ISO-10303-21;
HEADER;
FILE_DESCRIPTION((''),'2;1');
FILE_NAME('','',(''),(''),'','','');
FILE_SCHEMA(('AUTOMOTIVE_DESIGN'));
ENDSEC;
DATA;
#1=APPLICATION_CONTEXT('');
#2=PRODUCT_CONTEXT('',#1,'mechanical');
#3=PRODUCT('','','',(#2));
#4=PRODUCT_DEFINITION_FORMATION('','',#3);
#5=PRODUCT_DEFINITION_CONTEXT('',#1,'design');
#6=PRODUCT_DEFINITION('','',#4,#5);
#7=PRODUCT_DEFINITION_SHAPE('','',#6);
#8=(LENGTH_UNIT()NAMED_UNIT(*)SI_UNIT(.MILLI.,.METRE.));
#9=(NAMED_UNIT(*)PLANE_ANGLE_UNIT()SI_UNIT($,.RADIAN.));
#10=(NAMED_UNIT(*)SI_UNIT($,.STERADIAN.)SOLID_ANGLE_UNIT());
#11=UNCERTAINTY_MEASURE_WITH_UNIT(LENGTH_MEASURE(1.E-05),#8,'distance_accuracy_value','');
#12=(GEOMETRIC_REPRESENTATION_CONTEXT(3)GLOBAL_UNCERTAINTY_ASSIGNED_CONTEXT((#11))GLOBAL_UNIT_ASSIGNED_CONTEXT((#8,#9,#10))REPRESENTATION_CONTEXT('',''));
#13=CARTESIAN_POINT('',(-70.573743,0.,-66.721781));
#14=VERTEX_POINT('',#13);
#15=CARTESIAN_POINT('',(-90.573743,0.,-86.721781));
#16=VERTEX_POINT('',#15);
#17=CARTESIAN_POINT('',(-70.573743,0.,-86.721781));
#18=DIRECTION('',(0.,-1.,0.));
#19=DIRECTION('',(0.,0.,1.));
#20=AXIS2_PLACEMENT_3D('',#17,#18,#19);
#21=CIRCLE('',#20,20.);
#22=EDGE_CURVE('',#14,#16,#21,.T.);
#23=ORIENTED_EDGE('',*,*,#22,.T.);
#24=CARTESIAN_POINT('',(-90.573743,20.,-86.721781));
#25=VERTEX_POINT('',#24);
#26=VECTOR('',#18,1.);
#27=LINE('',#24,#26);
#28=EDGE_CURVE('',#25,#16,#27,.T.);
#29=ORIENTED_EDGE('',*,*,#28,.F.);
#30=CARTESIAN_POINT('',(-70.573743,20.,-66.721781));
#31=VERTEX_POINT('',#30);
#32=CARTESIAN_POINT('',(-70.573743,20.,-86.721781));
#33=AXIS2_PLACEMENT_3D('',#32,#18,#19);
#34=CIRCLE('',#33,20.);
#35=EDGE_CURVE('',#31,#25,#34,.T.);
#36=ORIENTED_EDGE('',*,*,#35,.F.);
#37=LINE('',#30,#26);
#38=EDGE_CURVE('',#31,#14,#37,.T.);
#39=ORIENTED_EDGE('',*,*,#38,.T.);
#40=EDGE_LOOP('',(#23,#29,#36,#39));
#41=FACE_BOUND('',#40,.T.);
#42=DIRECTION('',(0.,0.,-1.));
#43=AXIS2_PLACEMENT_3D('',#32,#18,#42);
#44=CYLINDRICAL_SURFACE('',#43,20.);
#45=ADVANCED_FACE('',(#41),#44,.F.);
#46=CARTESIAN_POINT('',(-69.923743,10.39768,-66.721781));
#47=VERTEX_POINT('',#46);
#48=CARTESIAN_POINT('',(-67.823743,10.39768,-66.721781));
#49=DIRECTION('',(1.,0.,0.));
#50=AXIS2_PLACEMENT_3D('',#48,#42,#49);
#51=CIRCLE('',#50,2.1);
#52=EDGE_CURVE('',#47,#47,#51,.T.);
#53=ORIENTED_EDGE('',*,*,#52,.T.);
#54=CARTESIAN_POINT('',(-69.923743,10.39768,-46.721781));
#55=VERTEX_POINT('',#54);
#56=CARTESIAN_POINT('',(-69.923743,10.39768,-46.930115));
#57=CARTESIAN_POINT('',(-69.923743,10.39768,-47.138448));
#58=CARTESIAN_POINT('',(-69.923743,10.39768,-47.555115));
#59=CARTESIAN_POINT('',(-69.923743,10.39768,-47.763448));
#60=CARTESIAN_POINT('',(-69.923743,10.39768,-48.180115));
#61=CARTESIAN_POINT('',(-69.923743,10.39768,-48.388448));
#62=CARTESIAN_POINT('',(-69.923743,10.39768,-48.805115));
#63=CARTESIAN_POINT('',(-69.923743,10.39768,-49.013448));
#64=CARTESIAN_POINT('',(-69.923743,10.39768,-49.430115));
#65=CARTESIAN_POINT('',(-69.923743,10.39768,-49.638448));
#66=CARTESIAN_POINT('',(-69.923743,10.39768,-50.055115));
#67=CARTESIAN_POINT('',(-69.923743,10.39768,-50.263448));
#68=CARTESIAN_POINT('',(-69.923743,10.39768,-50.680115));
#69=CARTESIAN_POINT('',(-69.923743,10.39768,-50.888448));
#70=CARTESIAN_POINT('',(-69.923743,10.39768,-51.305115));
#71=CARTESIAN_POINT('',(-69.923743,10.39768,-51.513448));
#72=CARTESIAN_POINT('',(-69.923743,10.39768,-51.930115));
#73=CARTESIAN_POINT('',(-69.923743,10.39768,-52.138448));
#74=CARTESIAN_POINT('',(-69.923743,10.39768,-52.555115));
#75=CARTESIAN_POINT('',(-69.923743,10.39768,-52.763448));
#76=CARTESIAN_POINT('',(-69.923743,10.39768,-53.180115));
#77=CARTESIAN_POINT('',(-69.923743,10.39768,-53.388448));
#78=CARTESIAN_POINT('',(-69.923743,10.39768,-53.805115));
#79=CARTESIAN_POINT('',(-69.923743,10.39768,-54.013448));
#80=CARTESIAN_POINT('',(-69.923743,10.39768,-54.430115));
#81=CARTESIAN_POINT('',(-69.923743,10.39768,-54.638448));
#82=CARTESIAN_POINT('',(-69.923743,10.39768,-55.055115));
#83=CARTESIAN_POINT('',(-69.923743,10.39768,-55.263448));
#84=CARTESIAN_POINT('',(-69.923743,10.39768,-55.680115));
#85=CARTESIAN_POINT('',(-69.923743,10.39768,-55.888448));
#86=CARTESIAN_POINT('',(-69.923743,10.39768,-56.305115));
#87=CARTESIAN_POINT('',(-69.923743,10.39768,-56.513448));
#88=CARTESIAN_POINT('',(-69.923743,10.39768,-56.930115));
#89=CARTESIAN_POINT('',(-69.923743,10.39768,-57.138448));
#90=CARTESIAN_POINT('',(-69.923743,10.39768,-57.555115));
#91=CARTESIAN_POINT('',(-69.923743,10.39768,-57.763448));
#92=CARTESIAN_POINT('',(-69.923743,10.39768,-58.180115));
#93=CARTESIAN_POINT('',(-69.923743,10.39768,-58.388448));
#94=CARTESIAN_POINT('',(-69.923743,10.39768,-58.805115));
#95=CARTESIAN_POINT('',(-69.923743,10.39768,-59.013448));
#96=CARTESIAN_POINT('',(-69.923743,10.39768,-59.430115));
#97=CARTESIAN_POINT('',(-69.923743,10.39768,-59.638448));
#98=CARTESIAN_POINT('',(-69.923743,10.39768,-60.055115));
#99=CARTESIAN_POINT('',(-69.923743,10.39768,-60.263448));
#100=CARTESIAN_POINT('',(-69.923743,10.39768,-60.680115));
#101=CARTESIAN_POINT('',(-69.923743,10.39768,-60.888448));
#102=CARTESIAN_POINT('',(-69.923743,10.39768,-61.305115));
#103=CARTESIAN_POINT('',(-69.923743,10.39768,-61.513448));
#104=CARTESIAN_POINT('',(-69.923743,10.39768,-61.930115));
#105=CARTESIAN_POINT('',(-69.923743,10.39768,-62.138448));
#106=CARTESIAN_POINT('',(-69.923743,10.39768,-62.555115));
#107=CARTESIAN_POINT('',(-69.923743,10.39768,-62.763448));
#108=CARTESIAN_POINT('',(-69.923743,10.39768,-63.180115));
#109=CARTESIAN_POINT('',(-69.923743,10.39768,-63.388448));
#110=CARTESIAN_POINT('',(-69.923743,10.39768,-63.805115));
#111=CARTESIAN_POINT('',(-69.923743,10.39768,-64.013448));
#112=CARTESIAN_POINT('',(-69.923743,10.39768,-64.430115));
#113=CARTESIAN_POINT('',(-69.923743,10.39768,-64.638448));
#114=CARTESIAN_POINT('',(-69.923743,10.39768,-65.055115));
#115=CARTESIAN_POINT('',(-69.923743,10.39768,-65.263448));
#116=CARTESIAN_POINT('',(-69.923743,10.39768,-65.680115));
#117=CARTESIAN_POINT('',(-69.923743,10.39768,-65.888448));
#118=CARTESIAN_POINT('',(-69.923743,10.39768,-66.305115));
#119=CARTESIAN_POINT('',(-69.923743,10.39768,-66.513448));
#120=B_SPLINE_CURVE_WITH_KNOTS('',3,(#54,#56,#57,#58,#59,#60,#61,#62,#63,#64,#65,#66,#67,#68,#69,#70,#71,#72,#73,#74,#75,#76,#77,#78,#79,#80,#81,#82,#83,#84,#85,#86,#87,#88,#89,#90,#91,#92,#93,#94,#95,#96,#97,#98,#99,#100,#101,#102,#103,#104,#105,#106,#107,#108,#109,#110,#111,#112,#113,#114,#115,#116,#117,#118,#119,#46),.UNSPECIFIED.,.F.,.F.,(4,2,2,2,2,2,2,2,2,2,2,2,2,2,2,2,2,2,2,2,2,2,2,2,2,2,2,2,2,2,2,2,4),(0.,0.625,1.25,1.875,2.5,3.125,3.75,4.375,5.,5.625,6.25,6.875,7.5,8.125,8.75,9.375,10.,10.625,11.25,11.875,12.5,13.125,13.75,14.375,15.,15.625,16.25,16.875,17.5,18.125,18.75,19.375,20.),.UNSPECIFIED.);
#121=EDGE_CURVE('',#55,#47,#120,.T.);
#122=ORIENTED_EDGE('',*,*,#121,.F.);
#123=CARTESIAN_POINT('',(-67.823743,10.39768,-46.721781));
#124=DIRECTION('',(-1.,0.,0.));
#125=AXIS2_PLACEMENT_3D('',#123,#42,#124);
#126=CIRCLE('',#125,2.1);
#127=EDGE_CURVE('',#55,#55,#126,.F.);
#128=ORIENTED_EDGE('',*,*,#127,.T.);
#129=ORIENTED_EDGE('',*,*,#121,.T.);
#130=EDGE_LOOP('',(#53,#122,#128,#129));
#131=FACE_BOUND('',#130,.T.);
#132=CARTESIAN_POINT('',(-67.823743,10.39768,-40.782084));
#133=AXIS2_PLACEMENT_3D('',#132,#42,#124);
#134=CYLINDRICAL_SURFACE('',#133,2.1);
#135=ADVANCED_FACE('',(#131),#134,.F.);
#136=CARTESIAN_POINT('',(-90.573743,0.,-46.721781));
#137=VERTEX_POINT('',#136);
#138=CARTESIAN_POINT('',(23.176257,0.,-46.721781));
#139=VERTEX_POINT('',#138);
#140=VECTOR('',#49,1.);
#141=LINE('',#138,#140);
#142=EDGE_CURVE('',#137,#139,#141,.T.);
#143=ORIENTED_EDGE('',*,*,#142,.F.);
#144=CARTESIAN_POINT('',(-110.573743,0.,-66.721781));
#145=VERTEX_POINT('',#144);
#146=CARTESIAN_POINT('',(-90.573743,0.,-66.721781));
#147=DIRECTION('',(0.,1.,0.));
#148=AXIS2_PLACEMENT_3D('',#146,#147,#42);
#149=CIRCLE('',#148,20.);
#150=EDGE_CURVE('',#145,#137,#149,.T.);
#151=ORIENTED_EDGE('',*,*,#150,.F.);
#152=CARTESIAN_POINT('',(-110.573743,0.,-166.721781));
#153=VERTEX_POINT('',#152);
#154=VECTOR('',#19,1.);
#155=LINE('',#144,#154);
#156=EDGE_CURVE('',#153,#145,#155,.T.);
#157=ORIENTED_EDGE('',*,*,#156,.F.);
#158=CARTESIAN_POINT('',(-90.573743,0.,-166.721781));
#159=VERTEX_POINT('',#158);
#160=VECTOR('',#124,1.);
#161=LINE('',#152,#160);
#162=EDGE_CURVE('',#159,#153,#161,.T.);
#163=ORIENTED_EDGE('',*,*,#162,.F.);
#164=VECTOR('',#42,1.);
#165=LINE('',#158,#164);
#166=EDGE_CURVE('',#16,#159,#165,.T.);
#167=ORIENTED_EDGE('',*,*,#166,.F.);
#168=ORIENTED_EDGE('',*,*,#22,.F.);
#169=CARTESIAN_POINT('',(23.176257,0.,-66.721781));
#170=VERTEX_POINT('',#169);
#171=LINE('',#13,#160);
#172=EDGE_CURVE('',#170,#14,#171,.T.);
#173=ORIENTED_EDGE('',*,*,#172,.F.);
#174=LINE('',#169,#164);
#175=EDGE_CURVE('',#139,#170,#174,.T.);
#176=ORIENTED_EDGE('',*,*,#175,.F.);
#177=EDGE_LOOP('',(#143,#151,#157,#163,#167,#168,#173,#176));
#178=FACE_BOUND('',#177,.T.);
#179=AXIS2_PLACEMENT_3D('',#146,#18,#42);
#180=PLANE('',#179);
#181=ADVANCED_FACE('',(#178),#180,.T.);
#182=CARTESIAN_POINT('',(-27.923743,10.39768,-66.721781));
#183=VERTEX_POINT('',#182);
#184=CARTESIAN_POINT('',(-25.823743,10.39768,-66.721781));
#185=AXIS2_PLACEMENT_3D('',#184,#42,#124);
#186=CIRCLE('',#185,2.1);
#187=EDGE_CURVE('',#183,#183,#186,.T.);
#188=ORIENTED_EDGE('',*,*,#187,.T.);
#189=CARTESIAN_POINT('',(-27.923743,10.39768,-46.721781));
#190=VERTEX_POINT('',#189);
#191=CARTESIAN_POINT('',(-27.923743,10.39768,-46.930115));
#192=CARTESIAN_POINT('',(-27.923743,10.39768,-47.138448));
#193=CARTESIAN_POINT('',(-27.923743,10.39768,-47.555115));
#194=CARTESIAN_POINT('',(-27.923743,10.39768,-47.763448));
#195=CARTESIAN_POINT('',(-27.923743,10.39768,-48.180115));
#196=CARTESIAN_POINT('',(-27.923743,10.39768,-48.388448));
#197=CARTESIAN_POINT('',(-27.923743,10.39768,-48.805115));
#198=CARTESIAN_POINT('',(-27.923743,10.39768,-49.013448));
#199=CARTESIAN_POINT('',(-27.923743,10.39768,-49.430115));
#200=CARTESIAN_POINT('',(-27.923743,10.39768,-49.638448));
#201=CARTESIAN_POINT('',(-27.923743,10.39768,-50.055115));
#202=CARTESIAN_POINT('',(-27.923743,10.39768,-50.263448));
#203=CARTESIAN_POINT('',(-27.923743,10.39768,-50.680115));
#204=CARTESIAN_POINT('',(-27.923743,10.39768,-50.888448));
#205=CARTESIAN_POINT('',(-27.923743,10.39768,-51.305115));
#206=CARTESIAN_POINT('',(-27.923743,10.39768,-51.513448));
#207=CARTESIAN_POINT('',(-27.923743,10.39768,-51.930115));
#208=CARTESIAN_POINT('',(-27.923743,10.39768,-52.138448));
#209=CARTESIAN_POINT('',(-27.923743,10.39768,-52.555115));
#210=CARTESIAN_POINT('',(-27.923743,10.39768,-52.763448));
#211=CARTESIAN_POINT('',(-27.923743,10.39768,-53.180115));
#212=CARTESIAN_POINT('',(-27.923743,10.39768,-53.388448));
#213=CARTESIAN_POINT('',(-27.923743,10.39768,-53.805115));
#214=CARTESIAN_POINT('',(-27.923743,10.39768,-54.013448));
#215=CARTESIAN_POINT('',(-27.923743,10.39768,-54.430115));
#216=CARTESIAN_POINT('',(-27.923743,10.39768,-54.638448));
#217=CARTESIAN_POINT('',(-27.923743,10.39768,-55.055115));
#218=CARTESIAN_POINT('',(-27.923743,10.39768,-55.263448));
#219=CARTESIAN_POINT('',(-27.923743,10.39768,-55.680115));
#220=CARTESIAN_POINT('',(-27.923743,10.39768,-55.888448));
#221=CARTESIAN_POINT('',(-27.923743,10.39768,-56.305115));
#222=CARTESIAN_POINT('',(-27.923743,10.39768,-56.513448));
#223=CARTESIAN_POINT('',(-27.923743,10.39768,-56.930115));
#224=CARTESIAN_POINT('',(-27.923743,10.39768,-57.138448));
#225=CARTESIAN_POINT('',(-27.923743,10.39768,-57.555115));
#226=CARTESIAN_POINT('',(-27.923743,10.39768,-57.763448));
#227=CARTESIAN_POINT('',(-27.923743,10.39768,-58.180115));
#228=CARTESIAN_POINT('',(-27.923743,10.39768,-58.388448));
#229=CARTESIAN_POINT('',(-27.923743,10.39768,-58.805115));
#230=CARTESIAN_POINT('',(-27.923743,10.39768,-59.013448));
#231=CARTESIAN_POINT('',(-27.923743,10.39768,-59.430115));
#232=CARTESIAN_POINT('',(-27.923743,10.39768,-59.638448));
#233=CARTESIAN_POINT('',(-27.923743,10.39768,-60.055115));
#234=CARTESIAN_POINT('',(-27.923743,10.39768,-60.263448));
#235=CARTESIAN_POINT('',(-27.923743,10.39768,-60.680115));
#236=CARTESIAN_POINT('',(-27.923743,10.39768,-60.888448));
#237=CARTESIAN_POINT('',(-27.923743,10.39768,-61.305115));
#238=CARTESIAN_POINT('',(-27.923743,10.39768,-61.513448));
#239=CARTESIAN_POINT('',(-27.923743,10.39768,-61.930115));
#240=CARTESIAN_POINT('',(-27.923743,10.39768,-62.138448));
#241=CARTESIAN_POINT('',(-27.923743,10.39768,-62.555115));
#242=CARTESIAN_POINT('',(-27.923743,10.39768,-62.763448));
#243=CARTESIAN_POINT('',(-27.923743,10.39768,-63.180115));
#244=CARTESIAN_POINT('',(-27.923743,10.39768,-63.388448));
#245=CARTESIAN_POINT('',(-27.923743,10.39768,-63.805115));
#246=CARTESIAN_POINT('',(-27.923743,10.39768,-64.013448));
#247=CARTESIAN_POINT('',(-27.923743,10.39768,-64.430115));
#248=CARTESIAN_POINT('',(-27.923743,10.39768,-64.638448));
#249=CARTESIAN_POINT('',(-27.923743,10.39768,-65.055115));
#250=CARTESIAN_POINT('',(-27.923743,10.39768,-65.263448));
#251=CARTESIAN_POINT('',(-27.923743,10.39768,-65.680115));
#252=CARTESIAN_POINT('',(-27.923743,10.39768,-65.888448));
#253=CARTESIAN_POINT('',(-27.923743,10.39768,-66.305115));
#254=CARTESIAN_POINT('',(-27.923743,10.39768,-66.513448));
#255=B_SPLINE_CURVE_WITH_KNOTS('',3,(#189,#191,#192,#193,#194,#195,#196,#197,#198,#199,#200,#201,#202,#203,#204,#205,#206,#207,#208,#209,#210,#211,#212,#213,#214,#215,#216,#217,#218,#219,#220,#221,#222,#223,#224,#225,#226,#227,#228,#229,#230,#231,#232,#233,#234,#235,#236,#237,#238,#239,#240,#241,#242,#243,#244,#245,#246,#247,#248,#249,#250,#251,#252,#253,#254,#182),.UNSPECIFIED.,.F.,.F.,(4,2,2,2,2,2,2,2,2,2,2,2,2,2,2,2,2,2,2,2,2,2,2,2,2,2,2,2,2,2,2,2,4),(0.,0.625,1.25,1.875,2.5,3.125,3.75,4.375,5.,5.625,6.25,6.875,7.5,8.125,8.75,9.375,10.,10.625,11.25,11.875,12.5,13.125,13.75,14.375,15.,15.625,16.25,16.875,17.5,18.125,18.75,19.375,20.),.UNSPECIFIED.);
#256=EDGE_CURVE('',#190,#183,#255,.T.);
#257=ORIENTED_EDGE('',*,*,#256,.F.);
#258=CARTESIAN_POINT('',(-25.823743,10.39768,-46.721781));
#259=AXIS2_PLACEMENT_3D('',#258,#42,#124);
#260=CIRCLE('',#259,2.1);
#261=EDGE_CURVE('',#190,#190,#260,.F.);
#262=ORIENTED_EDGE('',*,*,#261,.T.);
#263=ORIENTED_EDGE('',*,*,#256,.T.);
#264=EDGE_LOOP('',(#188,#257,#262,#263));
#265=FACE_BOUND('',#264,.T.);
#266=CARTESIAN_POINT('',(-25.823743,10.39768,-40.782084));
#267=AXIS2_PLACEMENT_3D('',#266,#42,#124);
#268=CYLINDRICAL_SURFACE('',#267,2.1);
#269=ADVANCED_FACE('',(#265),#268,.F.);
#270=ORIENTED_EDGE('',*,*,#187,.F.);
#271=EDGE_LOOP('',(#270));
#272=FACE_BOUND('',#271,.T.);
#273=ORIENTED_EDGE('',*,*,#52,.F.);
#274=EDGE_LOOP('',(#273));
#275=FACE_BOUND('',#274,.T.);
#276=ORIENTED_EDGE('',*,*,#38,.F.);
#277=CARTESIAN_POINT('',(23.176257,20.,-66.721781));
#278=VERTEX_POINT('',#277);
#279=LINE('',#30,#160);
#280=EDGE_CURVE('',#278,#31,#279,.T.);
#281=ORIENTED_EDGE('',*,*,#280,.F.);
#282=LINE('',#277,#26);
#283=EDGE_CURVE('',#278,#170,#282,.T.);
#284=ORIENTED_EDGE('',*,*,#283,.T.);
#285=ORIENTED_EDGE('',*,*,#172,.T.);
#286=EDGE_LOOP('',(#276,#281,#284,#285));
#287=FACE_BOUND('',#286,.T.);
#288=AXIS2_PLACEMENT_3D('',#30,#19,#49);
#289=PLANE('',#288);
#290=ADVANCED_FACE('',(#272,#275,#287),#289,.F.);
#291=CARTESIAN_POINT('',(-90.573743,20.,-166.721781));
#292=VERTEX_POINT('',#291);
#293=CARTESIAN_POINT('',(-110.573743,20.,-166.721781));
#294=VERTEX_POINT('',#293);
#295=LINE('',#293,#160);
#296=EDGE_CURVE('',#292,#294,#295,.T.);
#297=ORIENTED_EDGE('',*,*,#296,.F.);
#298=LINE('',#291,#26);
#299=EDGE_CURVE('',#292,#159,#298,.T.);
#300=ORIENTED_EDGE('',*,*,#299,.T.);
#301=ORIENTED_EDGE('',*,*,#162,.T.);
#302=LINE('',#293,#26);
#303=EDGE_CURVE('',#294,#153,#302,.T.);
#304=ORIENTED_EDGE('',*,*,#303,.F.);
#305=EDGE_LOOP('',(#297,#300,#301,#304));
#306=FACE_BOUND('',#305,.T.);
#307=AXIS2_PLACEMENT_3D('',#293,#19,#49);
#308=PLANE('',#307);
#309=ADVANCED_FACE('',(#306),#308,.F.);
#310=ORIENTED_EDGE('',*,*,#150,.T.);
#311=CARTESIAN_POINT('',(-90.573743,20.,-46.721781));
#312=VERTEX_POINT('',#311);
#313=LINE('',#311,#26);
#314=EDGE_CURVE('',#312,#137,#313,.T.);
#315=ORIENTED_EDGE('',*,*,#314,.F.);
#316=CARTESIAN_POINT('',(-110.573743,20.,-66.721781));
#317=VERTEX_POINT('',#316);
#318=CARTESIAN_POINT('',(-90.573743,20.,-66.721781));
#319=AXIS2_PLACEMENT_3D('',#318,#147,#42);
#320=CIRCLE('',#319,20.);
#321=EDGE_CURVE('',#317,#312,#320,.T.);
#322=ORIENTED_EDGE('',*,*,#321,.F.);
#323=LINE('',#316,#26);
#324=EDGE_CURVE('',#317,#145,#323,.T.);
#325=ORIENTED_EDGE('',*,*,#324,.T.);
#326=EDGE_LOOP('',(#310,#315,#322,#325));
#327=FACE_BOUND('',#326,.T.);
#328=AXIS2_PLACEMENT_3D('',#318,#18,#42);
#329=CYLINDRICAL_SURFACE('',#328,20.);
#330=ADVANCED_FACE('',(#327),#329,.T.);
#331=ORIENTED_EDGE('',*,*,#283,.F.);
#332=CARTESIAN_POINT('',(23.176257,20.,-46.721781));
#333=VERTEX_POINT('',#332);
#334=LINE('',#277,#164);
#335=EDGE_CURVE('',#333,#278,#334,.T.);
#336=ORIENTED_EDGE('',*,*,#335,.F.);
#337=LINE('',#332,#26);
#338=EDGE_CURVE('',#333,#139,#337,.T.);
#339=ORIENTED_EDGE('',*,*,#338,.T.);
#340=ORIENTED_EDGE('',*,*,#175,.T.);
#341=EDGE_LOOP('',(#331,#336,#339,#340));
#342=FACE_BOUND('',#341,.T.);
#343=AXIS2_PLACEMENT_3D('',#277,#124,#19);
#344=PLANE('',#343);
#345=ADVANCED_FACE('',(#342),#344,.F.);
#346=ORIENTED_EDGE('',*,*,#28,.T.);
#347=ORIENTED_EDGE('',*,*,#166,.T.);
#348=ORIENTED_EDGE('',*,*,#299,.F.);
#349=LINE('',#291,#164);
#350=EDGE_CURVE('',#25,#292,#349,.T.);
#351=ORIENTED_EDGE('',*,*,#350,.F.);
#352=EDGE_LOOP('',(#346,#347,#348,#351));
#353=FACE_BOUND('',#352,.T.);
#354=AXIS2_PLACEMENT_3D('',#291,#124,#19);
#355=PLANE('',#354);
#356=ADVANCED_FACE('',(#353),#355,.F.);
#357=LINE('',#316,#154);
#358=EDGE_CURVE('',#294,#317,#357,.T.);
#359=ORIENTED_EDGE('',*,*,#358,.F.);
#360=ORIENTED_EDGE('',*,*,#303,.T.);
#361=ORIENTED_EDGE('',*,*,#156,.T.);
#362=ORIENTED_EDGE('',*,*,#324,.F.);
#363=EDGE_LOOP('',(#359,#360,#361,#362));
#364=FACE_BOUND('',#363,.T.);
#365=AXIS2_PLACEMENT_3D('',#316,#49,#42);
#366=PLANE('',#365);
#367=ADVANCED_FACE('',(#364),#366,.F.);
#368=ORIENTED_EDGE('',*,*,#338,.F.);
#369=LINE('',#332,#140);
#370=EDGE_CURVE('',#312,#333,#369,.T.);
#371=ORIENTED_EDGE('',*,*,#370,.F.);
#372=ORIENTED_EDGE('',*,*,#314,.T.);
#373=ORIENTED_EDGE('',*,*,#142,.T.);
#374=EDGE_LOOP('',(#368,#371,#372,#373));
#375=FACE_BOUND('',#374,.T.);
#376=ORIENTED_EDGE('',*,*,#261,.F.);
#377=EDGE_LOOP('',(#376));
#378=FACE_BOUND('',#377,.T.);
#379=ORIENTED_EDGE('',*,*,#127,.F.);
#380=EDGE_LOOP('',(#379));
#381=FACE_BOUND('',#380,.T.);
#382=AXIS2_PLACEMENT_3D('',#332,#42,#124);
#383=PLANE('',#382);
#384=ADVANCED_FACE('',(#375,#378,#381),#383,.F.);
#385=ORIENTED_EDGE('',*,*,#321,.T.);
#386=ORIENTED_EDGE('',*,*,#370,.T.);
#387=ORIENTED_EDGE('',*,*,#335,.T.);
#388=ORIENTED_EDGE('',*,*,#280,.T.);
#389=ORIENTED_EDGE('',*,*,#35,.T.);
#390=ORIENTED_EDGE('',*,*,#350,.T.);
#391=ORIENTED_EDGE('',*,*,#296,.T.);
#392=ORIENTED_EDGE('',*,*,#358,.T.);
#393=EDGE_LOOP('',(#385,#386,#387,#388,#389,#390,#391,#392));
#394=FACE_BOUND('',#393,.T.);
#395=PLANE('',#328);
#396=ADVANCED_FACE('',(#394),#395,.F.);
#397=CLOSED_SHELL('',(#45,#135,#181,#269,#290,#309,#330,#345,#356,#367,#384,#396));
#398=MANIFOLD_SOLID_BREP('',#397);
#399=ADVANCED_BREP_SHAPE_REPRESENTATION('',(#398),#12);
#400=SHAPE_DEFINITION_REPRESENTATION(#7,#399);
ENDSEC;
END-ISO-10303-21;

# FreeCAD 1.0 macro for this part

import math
import FreeCAD as App
import Part
import Sketcher
Q = App.Units.Quantity

doc = App.newDocument("Part")
body = doc.addObject("PartDesign::Body", "Body")

# Sketch on XZ plane
sketch1 = doc.addObject("Sketcher::SketchObject", "Sketch")
body.addObject(sketch1)
sketch1.AttachmentSupport = (doc.XZ_Plane, [""])
sketch1.MapMode = "FlatFace"
sketch1.addGeometry([
    Part.LineSegment(App.Vector(-91, -47, 0), App.Vector(23, -47, 0)),  # 0
    Part.LineSegment(App.Vector(23, -47, 0), App.Vector(23, -67, 0)),  # 1
    Part.LineSegment(App.Vector(23, -67, 0), App.Vector(-71, -67, 0)),  # 2
    Part.ArcOfCircle(Part.Circle(App.Vector(-71, -87, 0), App.Vector(0, 0, 1), 20), math.radians(90), math.radians(180)),  # 3
    Part.LineSegment(App.Vector(-91, -87, 0), App.Vector(-91, -167, 0)),  # 4
    Part.LineSegment(App.Vector(-91, -167, 0), App.Vector(-111, -167, 0)),  # 5
    Part.LineSegment(App.Vector(-111, -167, 0), App.Vector(-111, -67, 0)),  # 6
    Part.ArcOfCircle(Part.Circle(App.Vector(-91, -67, 0), App.Vector(0, 0, 1), 20), math.radians(90), math.radians(180)),  # 7
], False)
sketch1.addConstraint([
    Sketcher.Constraint("Coincident", 0, 2, 1, 1),
    Sketcher.Constraint("Coincident", 1, 2, 2, 1),
    Sketcher.Constraint("Tangent", 2, 2, 3, 1),
    Sketcher.Constraint("Tangent", 3, 2, 4, 1),
    Sketcher.Constraint("Coincident", 4, 2, 5, 1),
    Sketcher.Constraint("Coincident", 5, 2, 6, 1),
    Sketcher.Constraint("Tangent", 6, 2, 7, 2),
    Sketcher.Constraint("Tangent", 7, 1, 0, 1),
    Sketcher.Constraint("Horizontal", 0),
    Sketcher.Constraint("Vertical", 1),
    Sketcher.Constraint("Horizontal", 2),
    Sketcher.Constraint("Vertical", 4),
    Sketcher.Constraint("Horizontal", 5),
    Sketcher.Constraint("Vertical", 6),
    Sketcher.Constraint("Equal", 3, 7),
    Sketcher.Constraint("Horizontal", 7, 3, 1, 2),
    Sketcher.Constraint("Vertical", 7, 3, 3, 2),
    Sketcher.Constraint("Radius", 3, Q("20 mm")),
    Sketcher.Constraint("DistanceY", 4, 2, 4, 1, Q("80 mm")),
    Sketcher.Constraint("DistanceX", 0, 1, 0, 2, Q("113.75 mm")),
    Sketcher.Constraint("DistanceY", 3, 3, -1, 1, Q("86.721781 mm")),
    Sketcher.Constraint("DistanceX", 3, 3, -1, 1, Q("70.573743 mm")),
])
pad1 = doc.addObject("PartDesign::Pad", "Pad")
body.addObject(pad1)
pad1.Profile = sketch1
pad1.Length = 20
pad1.Reversed = True

# Sketch on XY plane
sketch2 = doc.addObject("Sketcher::SketchObject", "Sketch001")
body.addObject(sketch2)
sketch2.AttachmentSupport = (doc.XY_Plane, [""])
sketch2.MapMode = "FlatFace"
sketch2.AttachmentOffset = App.Placement(App.Vector(0, 0, -66.721781), App.Rotation())
sketch2.addGeometry([
    Part.Circle(App.Vector(-25.8, 10.4, 0), App.Vector(0, 0, 1), 2.1),
    Part.Circle(App.Vector(-67.8, 10.4, 0), App.Vector(0, 0, 1), 2.1),
], False)
sketch2.addConstraint([
    Sketcher.Constraint("Equal", 0, 1),
    Sketcher.Constraint("Horizontal", 0, 3, 1, 3),
    Sketcher.Constraint("Diameter", 0, Q("4.2 mm")),
    Sketcher.Constraint("DistanceX", 1, 3, 0, 3, Q("42 mm")),
    Sketcher.Constraint("DistanceY", -1, 1, 0, 3, Q("10.39768 mm")),
    Sketcher.Constraint("DistanceX", 0, 3, -1, 1, Q("25.823743 mm")),
])
pocket1 = doc.addObject("PartDesign::Pocket", "Pocket")
body.addObject(pocket1)
pocket1.Profile = sketch2
pocket1.Length = 20
pocket1.Reversed = True

doc.recompute()
